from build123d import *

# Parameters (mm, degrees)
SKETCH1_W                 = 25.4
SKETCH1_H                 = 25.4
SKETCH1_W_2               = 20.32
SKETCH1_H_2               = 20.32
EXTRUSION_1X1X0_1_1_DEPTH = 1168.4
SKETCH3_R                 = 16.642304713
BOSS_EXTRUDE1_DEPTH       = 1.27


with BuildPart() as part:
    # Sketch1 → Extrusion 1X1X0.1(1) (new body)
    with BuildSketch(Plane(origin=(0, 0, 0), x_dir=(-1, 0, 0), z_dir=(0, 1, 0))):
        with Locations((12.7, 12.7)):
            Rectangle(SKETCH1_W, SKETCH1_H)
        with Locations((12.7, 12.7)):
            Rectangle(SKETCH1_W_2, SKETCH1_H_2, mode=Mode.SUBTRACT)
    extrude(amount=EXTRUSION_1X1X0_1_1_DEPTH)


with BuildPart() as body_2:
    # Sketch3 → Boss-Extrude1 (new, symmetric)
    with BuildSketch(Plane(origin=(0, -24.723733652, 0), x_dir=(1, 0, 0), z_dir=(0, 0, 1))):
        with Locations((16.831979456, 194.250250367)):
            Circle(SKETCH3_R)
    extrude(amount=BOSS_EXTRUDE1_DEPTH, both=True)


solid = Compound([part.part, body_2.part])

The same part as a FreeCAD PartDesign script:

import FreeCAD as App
import Part
import Sketcher
from FreeCAD import Vector
Q = App.Units.Quantity


def add_polygon(sketch, points):
    """Adds a closed chain of lines whose ends are joined by coincident constraints."""
    first, n = sketch.GeometryCount, len(points)
    for a, b in zip(points, points[1:] + points[:1]):
        sketch.addGeometry(Part.LineSegment(App.Vector(*a, 0), App.Vector(*b, 0)), False)
    for i in range(n):
        sketch.addConstraint(Sketcher.Constraint("Coincident", first + i, 2, first + (i + 1) % n, 1))

doc = App.newDocument("Part")
params = doc.addObject("Spreadsheet::Sheet", "Params")
for row, (alias, value) in enumerate([
    ("sketch1_width", "1 in"),
    ("sketch1_width2", "0.8 in"),
    ("pad1_length", "46 in"),
    ("pad2_length", "0.1 in"),
], start=1):
    params.set(f"A{row}", alias)
    params.set(f"B{row}", "=" + value)
    params.setAlias(f"B{row}", alias)

body = doc.addObject("PartDesign::Body", "Body")

# Sketch on XZ plane
sketch1 = doc.addObject("Sketcher::SketchObject", "Sketch")
body.addObject(sketch1)
sketch1.AttachmentSupport = (doc.XZ_Plane, [""])
sketch1.MapMode = "FlatFace"
add_polygon(sketch1, [(0, 25), (0, 0), (-25, 0), (-25, 25)])  # lines 0-3
add_polygon(sketch1, [(-23, 3), (-3, 3), (-3, 23), (-23, 23)])  # lines 4-7
sketch1.addConstraint([
    Sketcher.Constraint("Vertical", 0),
    Sketcher.Constraint("Horizontal", 1),
    Sketcher.Constraint("Vertical", 2),
    Sketcher.Constraint("Horizontal", 3),
    Sketcher.Constraint("Horizontal", 4),
    Sketcher.Constraint("Vertical", 5),
    Sketcher.Constraint("Horizontal", 6),
    Sketcher.Constraint("Vertical", 7),
    Sketcher.Constraint("Coincident", 0, 2, -1, 1),
    Sketcher.Constraint("Equal", 3, 0),
    Sketcher.Constraint("Equal", 6, 5),
    Sketcher.Constraint("DistanceX", 1, 2, 1, 1, Q("1 in")),
    Sketcher.Constraint("DistanceX", 4, 1, 4, 2, Q("0.8 in")),
    Sketcher.Constraint("DistanceX", 4, 2, -1, 1, Q("0.1 in")),
    Sketcher.Constraint("DistanceY", -1, 1, 4, 2, Q("0.1 in")),
])
sketch1.setExpression("Constraints[19]", "Params.sketch1_width")
sketch1.setExpression("Constraints[20]", "Params.sketch1_width2")
pad1 = doc.addObject("PartDesign::Pad", "Pad")
body.addObject(pad1)
pad1.Profile = sketch1
pad1.setExpression("Length", "Params.pad1_length")
pad1.Reversed = True
body2 = doc.addObject("PartDesign::Body", "Body001")

# Sketch on XY plane
sketch2 = doc.addObject("Sketcher::SketchObject", "Sketch001")
body2.addObject(sketch2)
sketch2.AttachmentSupport = (doc.getObject("XY_Plane001"), [""])
sketch2.MapMode = "FlatFace"
sketch2.addGeometry(Part.Circle(Vector(17, 170, 0), Vector(0, 0, 1), 17), False)
sketch2.addConstraint([
    Sketcher.Constraint("Diameter", 0, Q("33.284609 mm")),
    Sketcher.Constraint("DistanceX", -1, 1, 0, 3, Q("16.831979 mm")),
    Sketcher.Constraint("DistanceY", -1, 1, 0, 3, Q("169.526517 mm")),
])
pad2 = doc.addObject("PartDesign::Pad", "Pad001")
body2.addObject(pad2)
pad2.Profile = sketch2
pad2.setExpression("Length", "Params.pad2_length")
pad2.Midplane = True

doc.recompute()
